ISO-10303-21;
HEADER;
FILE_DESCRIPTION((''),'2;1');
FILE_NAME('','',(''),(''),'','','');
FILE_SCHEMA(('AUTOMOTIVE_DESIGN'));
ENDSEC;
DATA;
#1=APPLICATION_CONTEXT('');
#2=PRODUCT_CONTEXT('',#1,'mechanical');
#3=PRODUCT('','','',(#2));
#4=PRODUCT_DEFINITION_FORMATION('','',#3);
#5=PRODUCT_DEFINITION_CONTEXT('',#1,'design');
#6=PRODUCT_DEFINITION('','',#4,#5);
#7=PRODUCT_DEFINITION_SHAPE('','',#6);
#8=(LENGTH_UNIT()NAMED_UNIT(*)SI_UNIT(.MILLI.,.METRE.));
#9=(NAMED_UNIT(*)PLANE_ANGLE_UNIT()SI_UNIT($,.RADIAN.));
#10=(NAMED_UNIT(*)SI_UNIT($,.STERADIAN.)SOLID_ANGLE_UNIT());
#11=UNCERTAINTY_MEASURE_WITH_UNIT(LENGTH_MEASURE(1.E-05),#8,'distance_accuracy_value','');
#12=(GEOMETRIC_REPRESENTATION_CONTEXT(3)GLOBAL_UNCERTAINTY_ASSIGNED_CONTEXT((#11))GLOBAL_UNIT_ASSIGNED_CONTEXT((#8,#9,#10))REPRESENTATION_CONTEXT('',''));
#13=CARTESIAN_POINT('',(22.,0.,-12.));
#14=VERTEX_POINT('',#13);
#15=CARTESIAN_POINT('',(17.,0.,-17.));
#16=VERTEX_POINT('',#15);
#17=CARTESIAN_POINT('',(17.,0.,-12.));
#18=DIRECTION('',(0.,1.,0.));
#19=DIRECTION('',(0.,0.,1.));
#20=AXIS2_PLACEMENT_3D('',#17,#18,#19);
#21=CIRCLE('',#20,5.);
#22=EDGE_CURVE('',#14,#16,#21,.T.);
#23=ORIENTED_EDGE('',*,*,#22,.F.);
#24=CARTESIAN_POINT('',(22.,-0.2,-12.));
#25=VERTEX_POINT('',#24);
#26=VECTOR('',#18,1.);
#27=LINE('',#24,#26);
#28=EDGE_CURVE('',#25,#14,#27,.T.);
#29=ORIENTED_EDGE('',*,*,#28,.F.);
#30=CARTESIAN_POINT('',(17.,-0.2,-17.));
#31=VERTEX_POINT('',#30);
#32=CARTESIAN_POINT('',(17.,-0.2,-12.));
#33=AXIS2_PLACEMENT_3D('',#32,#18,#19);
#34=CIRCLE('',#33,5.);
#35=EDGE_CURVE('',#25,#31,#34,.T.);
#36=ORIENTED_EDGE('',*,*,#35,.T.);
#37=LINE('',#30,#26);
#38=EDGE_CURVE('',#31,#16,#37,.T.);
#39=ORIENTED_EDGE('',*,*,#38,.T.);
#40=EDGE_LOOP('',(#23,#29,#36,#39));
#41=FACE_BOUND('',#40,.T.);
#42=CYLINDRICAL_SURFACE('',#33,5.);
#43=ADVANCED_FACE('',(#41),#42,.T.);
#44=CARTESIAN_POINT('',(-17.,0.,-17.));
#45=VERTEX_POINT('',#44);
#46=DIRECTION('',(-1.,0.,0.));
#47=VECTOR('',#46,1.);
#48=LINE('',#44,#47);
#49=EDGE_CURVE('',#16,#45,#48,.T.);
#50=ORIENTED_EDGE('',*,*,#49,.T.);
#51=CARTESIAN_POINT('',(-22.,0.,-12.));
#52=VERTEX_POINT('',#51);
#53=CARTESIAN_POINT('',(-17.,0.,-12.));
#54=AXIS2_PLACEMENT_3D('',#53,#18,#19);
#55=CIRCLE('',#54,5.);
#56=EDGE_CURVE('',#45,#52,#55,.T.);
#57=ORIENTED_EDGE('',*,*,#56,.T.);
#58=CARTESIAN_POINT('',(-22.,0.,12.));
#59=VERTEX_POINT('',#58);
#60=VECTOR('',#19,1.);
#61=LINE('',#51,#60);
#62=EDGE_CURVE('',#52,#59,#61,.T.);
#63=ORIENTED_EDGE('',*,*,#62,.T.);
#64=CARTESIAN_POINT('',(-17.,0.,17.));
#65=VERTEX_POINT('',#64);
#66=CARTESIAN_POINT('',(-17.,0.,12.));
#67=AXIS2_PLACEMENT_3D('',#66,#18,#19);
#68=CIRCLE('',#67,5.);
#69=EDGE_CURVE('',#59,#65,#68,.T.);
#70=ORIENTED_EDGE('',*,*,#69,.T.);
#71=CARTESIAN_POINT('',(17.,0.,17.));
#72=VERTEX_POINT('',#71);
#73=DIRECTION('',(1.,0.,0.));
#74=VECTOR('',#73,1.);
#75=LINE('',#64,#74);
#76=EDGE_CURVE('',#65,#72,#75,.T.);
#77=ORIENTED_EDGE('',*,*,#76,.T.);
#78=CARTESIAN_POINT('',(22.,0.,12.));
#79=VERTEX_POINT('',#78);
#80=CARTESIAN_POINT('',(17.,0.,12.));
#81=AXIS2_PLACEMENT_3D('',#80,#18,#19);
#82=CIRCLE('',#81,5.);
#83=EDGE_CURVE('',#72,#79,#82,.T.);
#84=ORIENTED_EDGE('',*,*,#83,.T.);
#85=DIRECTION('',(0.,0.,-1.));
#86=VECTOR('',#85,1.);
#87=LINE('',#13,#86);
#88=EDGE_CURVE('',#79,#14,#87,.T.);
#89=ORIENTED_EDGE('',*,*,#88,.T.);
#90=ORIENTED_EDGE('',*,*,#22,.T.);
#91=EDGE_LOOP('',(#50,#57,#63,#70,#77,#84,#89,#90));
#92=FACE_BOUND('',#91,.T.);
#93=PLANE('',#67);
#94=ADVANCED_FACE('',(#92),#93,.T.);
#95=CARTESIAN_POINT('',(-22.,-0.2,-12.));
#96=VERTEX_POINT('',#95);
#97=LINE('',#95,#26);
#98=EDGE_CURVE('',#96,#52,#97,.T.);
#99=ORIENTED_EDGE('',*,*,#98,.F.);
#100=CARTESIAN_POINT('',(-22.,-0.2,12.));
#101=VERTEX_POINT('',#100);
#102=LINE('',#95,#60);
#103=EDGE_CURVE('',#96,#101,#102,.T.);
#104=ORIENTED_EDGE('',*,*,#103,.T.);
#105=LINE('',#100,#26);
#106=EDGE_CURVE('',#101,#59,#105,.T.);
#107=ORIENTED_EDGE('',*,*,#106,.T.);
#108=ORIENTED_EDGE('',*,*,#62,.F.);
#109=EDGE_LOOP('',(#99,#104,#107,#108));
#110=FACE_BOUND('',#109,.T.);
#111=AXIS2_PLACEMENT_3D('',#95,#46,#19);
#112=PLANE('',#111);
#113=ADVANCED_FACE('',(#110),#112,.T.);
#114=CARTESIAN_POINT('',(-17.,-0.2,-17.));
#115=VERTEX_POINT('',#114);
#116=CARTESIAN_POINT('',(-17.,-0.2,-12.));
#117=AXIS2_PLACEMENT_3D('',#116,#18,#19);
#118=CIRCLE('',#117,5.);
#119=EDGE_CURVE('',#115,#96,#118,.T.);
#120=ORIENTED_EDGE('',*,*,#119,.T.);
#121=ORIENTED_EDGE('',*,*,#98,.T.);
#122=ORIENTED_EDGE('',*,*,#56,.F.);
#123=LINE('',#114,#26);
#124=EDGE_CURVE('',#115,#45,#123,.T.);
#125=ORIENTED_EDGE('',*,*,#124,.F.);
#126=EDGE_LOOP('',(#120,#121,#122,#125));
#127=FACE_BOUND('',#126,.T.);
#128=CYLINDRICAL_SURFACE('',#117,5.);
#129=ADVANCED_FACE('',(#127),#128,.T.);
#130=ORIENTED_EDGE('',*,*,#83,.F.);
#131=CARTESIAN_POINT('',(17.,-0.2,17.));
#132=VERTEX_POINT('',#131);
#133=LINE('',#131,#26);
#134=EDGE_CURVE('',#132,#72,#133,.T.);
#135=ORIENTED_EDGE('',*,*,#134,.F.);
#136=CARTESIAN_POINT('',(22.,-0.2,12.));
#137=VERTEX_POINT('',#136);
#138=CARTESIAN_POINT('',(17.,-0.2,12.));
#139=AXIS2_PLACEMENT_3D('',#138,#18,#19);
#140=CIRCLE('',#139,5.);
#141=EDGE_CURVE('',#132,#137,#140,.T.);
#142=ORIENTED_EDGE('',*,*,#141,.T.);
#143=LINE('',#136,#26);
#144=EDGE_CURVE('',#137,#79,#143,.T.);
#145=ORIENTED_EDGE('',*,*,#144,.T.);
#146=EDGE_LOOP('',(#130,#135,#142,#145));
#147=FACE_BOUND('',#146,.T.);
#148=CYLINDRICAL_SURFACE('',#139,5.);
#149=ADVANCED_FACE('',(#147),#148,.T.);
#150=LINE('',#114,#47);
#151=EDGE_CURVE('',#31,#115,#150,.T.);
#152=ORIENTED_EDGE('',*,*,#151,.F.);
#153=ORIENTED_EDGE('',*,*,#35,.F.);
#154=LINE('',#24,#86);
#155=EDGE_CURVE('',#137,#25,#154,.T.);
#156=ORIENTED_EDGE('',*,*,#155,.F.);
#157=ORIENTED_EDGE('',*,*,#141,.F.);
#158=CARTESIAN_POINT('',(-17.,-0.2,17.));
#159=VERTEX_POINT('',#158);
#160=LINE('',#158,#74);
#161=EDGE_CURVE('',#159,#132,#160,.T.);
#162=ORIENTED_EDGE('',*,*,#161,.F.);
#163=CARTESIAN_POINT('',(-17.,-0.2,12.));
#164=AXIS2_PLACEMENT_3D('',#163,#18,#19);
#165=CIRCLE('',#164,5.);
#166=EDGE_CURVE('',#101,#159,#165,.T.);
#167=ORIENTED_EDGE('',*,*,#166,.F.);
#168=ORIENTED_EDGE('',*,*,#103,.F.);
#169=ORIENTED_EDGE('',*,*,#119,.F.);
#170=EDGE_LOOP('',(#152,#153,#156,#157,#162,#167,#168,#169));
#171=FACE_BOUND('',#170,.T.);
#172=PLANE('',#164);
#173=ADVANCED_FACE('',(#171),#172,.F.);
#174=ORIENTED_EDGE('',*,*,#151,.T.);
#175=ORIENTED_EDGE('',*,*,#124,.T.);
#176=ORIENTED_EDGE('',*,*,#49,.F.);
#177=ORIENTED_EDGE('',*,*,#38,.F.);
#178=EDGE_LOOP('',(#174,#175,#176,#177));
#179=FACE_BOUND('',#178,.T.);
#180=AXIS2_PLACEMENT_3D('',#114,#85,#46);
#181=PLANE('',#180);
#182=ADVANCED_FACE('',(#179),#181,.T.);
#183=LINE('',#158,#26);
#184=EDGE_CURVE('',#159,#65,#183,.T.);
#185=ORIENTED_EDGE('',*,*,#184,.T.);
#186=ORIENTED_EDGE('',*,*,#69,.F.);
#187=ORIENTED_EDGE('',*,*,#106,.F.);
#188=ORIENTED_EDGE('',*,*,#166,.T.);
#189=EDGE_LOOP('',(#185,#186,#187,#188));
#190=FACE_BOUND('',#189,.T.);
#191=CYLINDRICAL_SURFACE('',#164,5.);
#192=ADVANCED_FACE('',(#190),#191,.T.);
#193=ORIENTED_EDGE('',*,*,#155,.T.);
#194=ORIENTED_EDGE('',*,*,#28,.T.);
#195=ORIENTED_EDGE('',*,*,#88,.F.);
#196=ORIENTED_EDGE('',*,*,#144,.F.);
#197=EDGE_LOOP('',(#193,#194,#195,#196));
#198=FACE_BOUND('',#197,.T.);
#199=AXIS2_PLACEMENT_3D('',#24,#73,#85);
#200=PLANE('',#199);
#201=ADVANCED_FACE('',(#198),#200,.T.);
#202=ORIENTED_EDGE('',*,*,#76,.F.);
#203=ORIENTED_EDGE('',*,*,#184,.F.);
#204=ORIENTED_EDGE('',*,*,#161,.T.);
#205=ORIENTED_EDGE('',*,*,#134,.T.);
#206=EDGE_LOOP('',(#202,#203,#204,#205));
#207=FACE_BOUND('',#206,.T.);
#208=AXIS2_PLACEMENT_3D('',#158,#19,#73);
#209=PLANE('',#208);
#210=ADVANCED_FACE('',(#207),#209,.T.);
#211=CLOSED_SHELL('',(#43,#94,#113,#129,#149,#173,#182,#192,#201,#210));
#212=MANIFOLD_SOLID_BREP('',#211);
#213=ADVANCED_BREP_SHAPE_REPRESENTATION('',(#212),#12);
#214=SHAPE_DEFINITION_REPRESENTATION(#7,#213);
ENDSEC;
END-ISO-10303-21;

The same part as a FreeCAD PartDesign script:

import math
import FreeCAD as App
import Part
import Sketcher
from FreeCAD import Vector
Q = App.Units.Quantity

doc = App.newDocument("Part")
params = doc.addObject("Spreadsheet::Sheet", "Params")
for row, (alias, value) in enumerate([
    ("sketch1_radius", "5 mm"),
    ("sketch1_width", "34 mm"),
    ("sketch1_height", "24 mm"),
    ("pad1_length", "0.2 mm"),
], start=1):
    params.set(f"A{row}", alias)
    params.set(f"B{row}", "=" + value)
    params.setAlias(f"B{row}", alias)

body = doc.addObject("PartDesign::Body", "Body")

sketch1 = body.newObject("Sketcher::SketchObject", "Sketch")
sketch1.AttachmentSupport = (doc.getObject("XZ_Plane"), [""])
sketch1.MapMode = "FlatFace"
sketch1.addGeometry([
    Part.LineSegment(Vector(17, -17, 0), Vector(-17, -17, 0)),
    Part.ArcOfCircle(Part.Circle(Vector(-17, -12, 0), Vector(0, 0, 1), 5), math.radians(180), math.radians(270)),
    Part.LineSegment(Vector(-22, -12, 0), Vector(-22, 12, 0)),
    Part.ArcOfCircle(Part.Circle(Vector(-17, 12, 0), Vector(0, 0, 1), 5), math.radians(90), math.radians(180)),
    Part.LineSegment(Vector(-17, 17, 0), Vector(17, 17, 0)),
    Part.ArcOfCircle(Part.Circle(Vector(17, 12, 0), Vector(0, 0, 1), 5), math.radians(0), math.radians(90)),
    Part.LineSegment(Vector(22, 12, 0), Vector(22, -12, 0)),
    Part.ArcOfCircle(Part.Circle(Vector(17, -12, 0), Vector(0, 0, 1), 5), math.radians(-90), math.radians(0)),
], False)
sketch1.addConstraint([
    Sketcher.Constraint("Tangent", 0, 2, 1, 2),
    Sketcher.Constraint("Tangent", 1, 1, 2, 1),
    Sketcher.Constraint("Tangent", 2, 2, 3, 2),
    Sketcher.Constraint("Tangent", 3, 1, 4, 1),
    Sketcher.Constraint("Tangent", 4, 2, 5, 2),
    Sketcher.Constraint("Tangent", 5, 1, 6, 1),
    Sketcher.Constraint("Tangent", 6, 2, 7, 2),
    Sketcher.Constraint("Tangent", 7, 1, 0, 1),
    Sketcher.Constraint("Horizontal", 0),
    Sketcher.Constraint("Vertical", 2),
    Sketcher.Constraint("Horizontal", 4),
    Sketcher.Constraint("Vertical", 6),
    Sketcher.Constraint("Equal", 1, 3),
    Sketcher.Constraint("Equal", 3, 5),
    Sketcher.Constraint("Equal", 5, 7),
    Sketcher.Constraint("Symmetric", 1, 3, 5, 3, -1, 1),
    Sketcher.Constraint("Radius", 1, Q("5 mm")),
    Sketcher.Constraint("DistanceX", 0, 2, 0, 1, Q("34 mm")),
    Sketcher.Constraint("DistanceY", 2, 1, 2, 2, Q("24 mm")),
])
sketch1.setExpression("Constraints[16]", "Params.sketch1_radius")
sketch1.setExpression("Constraints[17]", "Params.sketch1_width")
sketch1.setExpression("Constraints[18]", "Params.sketch1_height")
pad1 = body.newObject("PartDesign::Pad", "Pad")
pad1.Profile = sketch1
pad1.setExpression("Length", "Params.pad1_length")

doc.recompute()
